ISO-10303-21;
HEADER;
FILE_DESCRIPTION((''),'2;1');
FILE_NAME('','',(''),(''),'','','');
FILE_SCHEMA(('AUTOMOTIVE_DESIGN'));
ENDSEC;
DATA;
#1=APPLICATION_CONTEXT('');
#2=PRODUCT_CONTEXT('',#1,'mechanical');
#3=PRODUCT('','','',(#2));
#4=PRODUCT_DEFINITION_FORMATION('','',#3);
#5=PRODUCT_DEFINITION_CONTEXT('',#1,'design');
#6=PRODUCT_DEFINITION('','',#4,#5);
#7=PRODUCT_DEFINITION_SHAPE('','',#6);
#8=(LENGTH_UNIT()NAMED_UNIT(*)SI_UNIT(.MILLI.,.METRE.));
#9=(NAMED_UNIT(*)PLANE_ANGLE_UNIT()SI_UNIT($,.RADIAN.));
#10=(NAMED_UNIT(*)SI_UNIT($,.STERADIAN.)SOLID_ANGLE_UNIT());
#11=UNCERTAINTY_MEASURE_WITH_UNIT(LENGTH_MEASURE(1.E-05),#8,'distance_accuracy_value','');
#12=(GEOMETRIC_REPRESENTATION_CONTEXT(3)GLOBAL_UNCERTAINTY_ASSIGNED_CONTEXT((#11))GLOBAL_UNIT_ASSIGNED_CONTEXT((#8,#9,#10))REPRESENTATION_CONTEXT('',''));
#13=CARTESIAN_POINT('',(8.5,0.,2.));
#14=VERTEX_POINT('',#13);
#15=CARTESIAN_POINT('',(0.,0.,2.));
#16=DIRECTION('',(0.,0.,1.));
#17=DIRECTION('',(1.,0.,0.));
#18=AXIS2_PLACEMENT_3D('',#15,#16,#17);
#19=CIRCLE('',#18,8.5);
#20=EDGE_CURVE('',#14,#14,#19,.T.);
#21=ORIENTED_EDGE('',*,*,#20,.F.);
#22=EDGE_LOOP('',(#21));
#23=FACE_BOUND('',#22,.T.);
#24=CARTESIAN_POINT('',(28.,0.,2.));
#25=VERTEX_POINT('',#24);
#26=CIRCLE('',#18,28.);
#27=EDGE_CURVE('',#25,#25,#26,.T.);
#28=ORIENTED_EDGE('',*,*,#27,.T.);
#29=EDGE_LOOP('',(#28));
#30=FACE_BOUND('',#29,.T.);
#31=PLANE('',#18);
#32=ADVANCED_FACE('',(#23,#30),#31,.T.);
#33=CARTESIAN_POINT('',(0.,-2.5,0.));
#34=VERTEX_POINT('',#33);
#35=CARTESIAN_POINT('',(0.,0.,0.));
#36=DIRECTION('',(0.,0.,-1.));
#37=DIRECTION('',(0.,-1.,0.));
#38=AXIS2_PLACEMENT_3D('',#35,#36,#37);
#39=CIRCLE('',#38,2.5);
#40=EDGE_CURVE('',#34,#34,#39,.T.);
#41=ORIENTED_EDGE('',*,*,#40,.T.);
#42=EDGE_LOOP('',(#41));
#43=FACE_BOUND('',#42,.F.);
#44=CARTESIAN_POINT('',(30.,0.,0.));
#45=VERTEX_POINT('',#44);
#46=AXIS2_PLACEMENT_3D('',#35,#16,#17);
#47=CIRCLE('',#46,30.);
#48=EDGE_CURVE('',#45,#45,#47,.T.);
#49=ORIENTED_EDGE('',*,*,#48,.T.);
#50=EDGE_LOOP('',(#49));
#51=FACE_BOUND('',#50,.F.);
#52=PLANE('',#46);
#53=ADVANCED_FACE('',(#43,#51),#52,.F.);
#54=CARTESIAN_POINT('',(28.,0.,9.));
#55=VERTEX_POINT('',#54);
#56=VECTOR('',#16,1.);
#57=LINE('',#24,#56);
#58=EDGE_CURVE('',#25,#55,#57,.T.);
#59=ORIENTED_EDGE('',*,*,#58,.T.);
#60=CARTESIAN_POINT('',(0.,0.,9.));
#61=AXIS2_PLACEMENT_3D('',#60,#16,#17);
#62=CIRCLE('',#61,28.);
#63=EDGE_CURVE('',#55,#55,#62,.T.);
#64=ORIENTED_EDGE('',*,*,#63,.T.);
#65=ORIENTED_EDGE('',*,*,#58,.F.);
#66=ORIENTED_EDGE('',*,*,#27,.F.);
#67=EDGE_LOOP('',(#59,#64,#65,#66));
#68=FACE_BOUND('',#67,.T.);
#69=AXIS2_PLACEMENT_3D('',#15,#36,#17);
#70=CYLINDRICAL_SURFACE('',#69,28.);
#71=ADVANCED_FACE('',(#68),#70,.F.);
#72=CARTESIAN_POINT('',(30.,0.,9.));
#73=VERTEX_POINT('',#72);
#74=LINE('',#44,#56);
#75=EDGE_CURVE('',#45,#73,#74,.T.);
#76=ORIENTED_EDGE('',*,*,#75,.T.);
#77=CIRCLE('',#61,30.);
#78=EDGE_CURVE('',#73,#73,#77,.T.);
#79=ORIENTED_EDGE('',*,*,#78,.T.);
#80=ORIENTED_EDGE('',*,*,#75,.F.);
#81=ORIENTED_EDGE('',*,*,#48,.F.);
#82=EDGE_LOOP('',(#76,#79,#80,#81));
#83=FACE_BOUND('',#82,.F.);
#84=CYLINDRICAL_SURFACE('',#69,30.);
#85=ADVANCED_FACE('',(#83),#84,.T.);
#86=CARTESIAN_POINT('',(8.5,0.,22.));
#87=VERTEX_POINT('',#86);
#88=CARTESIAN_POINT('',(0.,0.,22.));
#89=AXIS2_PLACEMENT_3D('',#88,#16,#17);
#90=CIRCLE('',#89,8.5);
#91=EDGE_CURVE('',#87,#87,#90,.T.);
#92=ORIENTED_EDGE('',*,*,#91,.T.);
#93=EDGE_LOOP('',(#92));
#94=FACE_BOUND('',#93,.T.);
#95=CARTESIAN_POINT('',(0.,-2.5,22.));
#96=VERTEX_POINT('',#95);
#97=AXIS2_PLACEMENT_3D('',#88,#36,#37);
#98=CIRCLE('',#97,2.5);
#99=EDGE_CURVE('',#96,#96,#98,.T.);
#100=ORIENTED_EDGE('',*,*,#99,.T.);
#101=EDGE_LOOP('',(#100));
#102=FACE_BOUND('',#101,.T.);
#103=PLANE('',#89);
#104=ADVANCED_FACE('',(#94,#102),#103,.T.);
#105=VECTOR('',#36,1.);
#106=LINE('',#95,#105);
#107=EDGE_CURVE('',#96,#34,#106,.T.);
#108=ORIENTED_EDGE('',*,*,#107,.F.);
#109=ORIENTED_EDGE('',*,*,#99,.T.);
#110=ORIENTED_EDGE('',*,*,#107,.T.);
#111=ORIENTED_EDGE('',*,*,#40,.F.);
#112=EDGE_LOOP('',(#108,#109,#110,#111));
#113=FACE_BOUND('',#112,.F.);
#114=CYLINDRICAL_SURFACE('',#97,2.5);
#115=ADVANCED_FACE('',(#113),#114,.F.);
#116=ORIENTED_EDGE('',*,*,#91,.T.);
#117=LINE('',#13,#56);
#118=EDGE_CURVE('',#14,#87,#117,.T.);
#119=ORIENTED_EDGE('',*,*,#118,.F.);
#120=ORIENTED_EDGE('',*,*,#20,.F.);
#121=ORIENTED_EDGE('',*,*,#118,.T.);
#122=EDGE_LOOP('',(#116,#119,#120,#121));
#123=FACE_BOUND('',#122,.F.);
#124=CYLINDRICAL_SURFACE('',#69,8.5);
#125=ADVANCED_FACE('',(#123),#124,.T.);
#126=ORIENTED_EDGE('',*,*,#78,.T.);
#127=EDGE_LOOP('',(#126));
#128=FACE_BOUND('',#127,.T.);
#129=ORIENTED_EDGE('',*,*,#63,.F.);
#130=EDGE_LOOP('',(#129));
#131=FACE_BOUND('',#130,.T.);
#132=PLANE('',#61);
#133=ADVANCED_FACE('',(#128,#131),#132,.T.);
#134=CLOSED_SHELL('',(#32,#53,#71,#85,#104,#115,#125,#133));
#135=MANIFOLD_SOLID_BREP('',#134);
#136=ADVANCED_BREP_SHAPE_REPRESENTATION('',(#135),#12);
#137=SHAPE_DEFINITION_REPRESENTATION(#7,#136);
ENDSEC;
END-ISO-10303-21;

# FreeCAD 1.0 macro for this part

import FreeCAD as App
import Part
import Sketcher
from FreeCAD import Vector
Q = App.Units.Quantity

doc = App.newDocument("Part")
params = doc.addObject("Spreadsheet::Sheet", "Params")
for row, (alias, value) in enumerate([
    ("sketch1_diameter", "60 mm"),
    ("pad1_length", "2 mm"),
    ("sketch2_diameter", "17 mm"),
    ("pad2_length", "20 mm"),
    ("sketch3_diameter", "5 mm"),
    ("hole_diameter", "5 mm"),
    ("sketch4_diameter", "60 mm"),
    ("sketch4_diameter2", "56 mm"),
    ("pad3_length", "7 mm"),
], start=1):
    params.set(f"A{row}", alias)
    params.set(f"B{row}", "=" + value)
    params.setAlias(f"B{row}", alias)

body = doc.addObject("PartDesign::Body", "Body")

sketch1 = body.newObject("Sketcher::SketchObject", "Sketch")
sketch1.AttachmentSupport = (doc.getObject("XY_Plane"), [""])
sketch1.MapMode = "FlatFace"
sketch1.addGeometry(Part.Circle(Vector(0, 0, 0), Vector(0, 0, 1), 30), False)
sketch1.addConstraint([
    Sketcher.Constraint("Coincident", 0, 3, -1, 1),
    Sketcher.Constraint("Diameter", 0, Q("60 mm")),
])
sketch1.setExpression("Constraints[1]", "Params.sketch1_diameter")
pad1 = body.newObject("PartDesign::Pad", "Pad")
pad1.Profile = sketch1
pad1.setExpression("Length", "Params.pad1_length")

sketch2 = body.newObject("Sketcher::SketchObject", "Sketch001")
sketch2.AttachmentSupport = (doc.getObject("XY_Plane"), [""])
sketch2.MapMode = "FlatFace"
sketch2.AttachmentOffset = App.Placement(Vector(0, 0, 2), App.Rotation())
sketch2.addGeometry(Part.Circle(Vector(0, 0, 0), Vector(0, 0, 1), 8), False)
sketch2.addConstraint([
    Sketcher.Constraint("Coincident", 0, 3, -1, 1),
    Sketcher.Constraint("Diameter", 0, Q("17 mm")),
])
sketch2.setExpression("Constraints[1]", "Params.sketch2_diameter")
pad2 = body.newObject("PartDesign::Pad", "Pad001")
pad2.Profile = sketch2
pad2.setExpression("Length", "Params.pad2_length")

sketch3 = body.newObject("Sketcher::SketchObject", "Sketch002")
sketch3.AttachmentSupport = (doc.getObject("XY_Plane"), [""])
sketch3.MapMode = "FlatFace"
sketch3.AttachmentOffset = App.Placement(Vector(0, 0, 22), App.Rotation())
sketch3.addGeometry(Part.Circle(Vector(0, 0, 0), Vector(0, 0, 1), 2.5), False)
sketch3.addConstraint([
    Sketcher.Constraint("Coincident", 0, 3, -1, 1),
    Sketcher.Constraint("Diameter", 0, Q("5 mm")),
])
sketch3.setExpression("Constraints[1]", "Params.sketch3_diameter")
doc.recompute()
hole = body.newObject("PartDesign::Hole", "Hole")
hole.Profile = sketch3
hole.ThreadType = "None"
hole.setExpression("Diameter", "Params.hole_diameter")
hole.DepthType = "ThroughAll"

sketch4 = body.newObject("Sketcher::SketchObject", "Sketch003")
sketch4.AttachmentSupport = (doc.getObject("XY_Plane"), [""])
sketch4.MapMode = "FlatFace"
sketch4.AttachmentOffset = App.Placement(Vector(0, 0, 2), App.Rotation())
sketch4.addGeometry([
    Part.Circle(Vector(0, 0, 0), Vector(0, 0, 1), 30),
    Part.Circle(Vector(0, 0, 0), Vector(0, 0, 1), 28),
], False)
sketch4.addConstraint([
    Sketcher.Constraint("Coincident", 0, 3, -1, 1),
    Sketcher.Constraint("Coincident", 1, 3, -1, 1),
    Sketcher.Constraint("Diameter", 0, Q("60 mm")),
    Sketcher.Constraint("Diameter", 1, Q("56 mm")),
])
sketch4.setExpression("Constraints[2]", "Params.sketch4_diameter")
sketch4.setExpression("Constraints[3]", "Params.sketch4_diameter2")
pad3 = body.newObject("PartDesign::Pad", "Pad002")
pad3.Profile = sketch4
pad3.setExpression("Length", "Params.pad3_length")

doc.recompute()
